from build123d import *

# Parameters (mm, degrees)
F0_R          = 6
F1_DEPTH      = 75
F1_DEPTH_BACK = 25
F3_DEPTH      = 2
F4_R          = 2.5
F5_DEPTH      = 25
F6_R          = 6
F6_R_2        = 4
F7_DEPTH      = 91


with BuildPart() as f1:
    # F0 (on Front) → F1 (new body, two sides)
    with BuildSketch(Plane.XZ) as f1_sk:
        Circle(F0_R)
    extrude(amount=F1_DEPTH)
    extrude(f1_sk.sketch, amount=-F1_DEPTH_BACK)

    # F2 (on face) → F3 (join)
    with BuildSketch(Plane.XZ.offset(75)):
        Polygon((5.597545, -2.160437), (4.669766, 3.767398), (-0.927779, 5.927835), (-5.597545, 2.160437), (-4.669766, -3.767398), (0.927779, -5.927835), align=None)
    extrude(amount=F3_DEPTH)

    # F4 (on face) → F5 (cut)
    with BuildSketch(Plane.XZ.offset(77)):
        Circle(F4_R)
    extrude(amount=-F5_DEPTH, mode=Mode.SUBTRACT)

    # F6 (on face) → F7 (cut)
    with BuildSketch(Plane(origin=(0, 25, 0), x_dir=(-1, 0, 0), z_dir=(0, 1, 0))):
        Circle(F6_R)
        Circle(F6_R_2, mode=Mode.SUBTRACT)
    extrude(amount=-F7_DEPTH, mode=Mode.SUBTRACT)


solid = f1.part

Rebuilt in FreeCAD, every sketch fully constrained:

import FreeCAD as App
import Part
import Sketcher

V = App.Vector

doc = App.newDocument("Part")
body = doc.addObject("PartDesign::Body", "Body")

# Sketch on XZ plane
sketch1 = body.newObject("Sketcher::SketchObject", "Sketch")
sketch1.AttachmentSupport = (doc.getObject("XZ_Plane"), [""])
sketch1.MapMode = "FlatFace"
sketch1.addGeometry(Part.Circle(V(0, 0, 0), V(0, 0, 1), 6), False)
sketch1.addConstraint(Sketcher.Constraint("Coincident", 0, 3, -1, 1))
sketch1.addConstraint(Sketcher.Constraint("Diameter", 0, 12.0))
pad1 = body.newObject("PartDesign::Pad", "Pad")
pad1.Profile = sketch1
pad1.Type = "TwoLengths"
pad1.Length = 75
pad1.Length2 = 25

# Sketch on XZ plane
sketch2 = body.newObject("Sketcher::SketchObject", "Sketch001")
sketch2.AttachmentSupport = (doc.getObject("XZ_Plane"), [""])
sketch2.MapMode = "FlatFace"
sketch2.AttachmentOffset = App.Placement(V(0, 0, 75), App.Rotation())
sketch2.addGeometry(Part.LineSegment(V(6, -2, 0), V(5, 4, 0)), False)
sketch2.addGeometry(Part.LineSegment(V(5, 4, 0), V(-1, 6, 0)), False)
sketch2.addGeometry(Part.LineSegment(V(-1, 6, 0), V(-6, 2, 0)), False)
sketch2.addGeometry(Part.LineSegment(V(-6, 2, 0), V(-5, -4, 0)), False)
sketch2.addGeometry(Part.LineSegment(V(-5, -4, 0), V(1, -6, 0)), False)
sketch2.addGeometry(Part.LineSegment(V(1, -6, 0), V(6, -2, 0)), False)
sketch2.addConstraint(Sketcher.Constraint("Coincident", 0, 2, 1, 1))
sketch2.addConstraint(Sketcher.Constraint("Coincident", 1, 2, 2, 1))
sketch2.addConstraint(Sketcher.Constraint("Coincident", 2, 2, 3, 1))
sketch2.addConstraint(Sketcher.Constraint("Coincident", 3, 2, 4, 1))
sketch2.addConstraint(Sketcher.Constraint("Coincident", 4, 2, 5, 1))
sketch2.addConstraint(Sketcher.Constraint("Coincident", 5, 2, 0, 1))
sketch2.addConstraint(Sketcher.Constraint("Symmetric", 0, 2, 3, 2, -1, 1))
sketch2.addConstraint(Sketcher.Constraint("Symmetric", 1, 2, 4, 2, -1, 1))
sketch2.addConstraint(Sketcher.Constraint("Symmetric", 2, 2, 5, 2, -1, 1))
sketch2.addConstraint(Sketcher.Constraint("Equal", 0, 1))
sketch2.addConstraint(Sketcher.Constraint("Equal", 1, 2))
sketch2.addConstraint(Sketcher.Constraint("Distance", 0, 6.0))
sketch2.addConstraint(Sketcher.Constraint("DistanceY", -1, 1, 0, 2, 3.767398))
sketch2.addConstraint(Sketcher.Constraint("DistanceY", 2, 2, 1, 2, 3.767398))
sketch2.addConstraint(Sketcher.Constraint("DistanceX", 1, 2, -1, 1, 0.927779))
pad2 = body.newObject("PartDesign::Pad", "Pad001")
pad2.Profile = sketch2
pad2.Length = 2

# Sketch on XZ plane
sketch3 = body.newObject("Sketcher::SketchObject", "Sketch002")
sketch3.AttachmentSupport = (doc.getObject("XZ_Plane"), [""])
sketch3.MapMode = "FlatFace"
sketch3.AttachmentOffset = App.Placement(V(0, 0, 77), App.Rotation())
sketch3.addGeometry(Part.Circle(V(0, 0, 0), V(0, 0, 1), 2.5), False)
sketch3.addConstraint(Sketcher.Constraint("Coincident", 0, 3, -1, 1))
sketch3.addConstraint(Sketcher.Constraint("Diameter", 0, 5.0))
pocket1 = body.newObject("PartDesign::Pocket", "Pocket")
pocket1.Profile = sketch3
pocket1.Length = 25

# Sketch on XZ plane
sketch4 = body.newObject("Sketcher::SketchObject", "Sketch003")
sketch4.AttachmentSupport = (doc.getObject("XZ_Plane"), [""])
sketch4.MapMode = "FlatFace"
sketch4.AttachmentOffset = App.Placement(V(0, 0, -25), App.Rotation())
sketch4.addGeometry(Part.Circle(V(0, 0, 0), V(0, 0, 1), 6), False)
sketch4.addGeometry(Part.Circle(V(0, 0, 0), V(0, 0, 1), 4), False)
sketch4.addConstraint(Sketcher.Constraint("Coincident", 0, 3, -1, 1))
sketch4.addConstraint(Sketcher.Constraint("Coincident", 1, 3, -1, 1))
sketch4.addConstraint(Sketcher.Constraint("Diameter", 0, 12.0))
sketch4.addConstraint(Sketcher.Constraint("Diameter", 1, 8.0))
pocket2 = body.newObject("PartDesign::Pocket", "Pocket001")
pocket2.Profile = sketch4
pocket2.Length = 91
pocket2.Reversed = True

doc.recompute()
